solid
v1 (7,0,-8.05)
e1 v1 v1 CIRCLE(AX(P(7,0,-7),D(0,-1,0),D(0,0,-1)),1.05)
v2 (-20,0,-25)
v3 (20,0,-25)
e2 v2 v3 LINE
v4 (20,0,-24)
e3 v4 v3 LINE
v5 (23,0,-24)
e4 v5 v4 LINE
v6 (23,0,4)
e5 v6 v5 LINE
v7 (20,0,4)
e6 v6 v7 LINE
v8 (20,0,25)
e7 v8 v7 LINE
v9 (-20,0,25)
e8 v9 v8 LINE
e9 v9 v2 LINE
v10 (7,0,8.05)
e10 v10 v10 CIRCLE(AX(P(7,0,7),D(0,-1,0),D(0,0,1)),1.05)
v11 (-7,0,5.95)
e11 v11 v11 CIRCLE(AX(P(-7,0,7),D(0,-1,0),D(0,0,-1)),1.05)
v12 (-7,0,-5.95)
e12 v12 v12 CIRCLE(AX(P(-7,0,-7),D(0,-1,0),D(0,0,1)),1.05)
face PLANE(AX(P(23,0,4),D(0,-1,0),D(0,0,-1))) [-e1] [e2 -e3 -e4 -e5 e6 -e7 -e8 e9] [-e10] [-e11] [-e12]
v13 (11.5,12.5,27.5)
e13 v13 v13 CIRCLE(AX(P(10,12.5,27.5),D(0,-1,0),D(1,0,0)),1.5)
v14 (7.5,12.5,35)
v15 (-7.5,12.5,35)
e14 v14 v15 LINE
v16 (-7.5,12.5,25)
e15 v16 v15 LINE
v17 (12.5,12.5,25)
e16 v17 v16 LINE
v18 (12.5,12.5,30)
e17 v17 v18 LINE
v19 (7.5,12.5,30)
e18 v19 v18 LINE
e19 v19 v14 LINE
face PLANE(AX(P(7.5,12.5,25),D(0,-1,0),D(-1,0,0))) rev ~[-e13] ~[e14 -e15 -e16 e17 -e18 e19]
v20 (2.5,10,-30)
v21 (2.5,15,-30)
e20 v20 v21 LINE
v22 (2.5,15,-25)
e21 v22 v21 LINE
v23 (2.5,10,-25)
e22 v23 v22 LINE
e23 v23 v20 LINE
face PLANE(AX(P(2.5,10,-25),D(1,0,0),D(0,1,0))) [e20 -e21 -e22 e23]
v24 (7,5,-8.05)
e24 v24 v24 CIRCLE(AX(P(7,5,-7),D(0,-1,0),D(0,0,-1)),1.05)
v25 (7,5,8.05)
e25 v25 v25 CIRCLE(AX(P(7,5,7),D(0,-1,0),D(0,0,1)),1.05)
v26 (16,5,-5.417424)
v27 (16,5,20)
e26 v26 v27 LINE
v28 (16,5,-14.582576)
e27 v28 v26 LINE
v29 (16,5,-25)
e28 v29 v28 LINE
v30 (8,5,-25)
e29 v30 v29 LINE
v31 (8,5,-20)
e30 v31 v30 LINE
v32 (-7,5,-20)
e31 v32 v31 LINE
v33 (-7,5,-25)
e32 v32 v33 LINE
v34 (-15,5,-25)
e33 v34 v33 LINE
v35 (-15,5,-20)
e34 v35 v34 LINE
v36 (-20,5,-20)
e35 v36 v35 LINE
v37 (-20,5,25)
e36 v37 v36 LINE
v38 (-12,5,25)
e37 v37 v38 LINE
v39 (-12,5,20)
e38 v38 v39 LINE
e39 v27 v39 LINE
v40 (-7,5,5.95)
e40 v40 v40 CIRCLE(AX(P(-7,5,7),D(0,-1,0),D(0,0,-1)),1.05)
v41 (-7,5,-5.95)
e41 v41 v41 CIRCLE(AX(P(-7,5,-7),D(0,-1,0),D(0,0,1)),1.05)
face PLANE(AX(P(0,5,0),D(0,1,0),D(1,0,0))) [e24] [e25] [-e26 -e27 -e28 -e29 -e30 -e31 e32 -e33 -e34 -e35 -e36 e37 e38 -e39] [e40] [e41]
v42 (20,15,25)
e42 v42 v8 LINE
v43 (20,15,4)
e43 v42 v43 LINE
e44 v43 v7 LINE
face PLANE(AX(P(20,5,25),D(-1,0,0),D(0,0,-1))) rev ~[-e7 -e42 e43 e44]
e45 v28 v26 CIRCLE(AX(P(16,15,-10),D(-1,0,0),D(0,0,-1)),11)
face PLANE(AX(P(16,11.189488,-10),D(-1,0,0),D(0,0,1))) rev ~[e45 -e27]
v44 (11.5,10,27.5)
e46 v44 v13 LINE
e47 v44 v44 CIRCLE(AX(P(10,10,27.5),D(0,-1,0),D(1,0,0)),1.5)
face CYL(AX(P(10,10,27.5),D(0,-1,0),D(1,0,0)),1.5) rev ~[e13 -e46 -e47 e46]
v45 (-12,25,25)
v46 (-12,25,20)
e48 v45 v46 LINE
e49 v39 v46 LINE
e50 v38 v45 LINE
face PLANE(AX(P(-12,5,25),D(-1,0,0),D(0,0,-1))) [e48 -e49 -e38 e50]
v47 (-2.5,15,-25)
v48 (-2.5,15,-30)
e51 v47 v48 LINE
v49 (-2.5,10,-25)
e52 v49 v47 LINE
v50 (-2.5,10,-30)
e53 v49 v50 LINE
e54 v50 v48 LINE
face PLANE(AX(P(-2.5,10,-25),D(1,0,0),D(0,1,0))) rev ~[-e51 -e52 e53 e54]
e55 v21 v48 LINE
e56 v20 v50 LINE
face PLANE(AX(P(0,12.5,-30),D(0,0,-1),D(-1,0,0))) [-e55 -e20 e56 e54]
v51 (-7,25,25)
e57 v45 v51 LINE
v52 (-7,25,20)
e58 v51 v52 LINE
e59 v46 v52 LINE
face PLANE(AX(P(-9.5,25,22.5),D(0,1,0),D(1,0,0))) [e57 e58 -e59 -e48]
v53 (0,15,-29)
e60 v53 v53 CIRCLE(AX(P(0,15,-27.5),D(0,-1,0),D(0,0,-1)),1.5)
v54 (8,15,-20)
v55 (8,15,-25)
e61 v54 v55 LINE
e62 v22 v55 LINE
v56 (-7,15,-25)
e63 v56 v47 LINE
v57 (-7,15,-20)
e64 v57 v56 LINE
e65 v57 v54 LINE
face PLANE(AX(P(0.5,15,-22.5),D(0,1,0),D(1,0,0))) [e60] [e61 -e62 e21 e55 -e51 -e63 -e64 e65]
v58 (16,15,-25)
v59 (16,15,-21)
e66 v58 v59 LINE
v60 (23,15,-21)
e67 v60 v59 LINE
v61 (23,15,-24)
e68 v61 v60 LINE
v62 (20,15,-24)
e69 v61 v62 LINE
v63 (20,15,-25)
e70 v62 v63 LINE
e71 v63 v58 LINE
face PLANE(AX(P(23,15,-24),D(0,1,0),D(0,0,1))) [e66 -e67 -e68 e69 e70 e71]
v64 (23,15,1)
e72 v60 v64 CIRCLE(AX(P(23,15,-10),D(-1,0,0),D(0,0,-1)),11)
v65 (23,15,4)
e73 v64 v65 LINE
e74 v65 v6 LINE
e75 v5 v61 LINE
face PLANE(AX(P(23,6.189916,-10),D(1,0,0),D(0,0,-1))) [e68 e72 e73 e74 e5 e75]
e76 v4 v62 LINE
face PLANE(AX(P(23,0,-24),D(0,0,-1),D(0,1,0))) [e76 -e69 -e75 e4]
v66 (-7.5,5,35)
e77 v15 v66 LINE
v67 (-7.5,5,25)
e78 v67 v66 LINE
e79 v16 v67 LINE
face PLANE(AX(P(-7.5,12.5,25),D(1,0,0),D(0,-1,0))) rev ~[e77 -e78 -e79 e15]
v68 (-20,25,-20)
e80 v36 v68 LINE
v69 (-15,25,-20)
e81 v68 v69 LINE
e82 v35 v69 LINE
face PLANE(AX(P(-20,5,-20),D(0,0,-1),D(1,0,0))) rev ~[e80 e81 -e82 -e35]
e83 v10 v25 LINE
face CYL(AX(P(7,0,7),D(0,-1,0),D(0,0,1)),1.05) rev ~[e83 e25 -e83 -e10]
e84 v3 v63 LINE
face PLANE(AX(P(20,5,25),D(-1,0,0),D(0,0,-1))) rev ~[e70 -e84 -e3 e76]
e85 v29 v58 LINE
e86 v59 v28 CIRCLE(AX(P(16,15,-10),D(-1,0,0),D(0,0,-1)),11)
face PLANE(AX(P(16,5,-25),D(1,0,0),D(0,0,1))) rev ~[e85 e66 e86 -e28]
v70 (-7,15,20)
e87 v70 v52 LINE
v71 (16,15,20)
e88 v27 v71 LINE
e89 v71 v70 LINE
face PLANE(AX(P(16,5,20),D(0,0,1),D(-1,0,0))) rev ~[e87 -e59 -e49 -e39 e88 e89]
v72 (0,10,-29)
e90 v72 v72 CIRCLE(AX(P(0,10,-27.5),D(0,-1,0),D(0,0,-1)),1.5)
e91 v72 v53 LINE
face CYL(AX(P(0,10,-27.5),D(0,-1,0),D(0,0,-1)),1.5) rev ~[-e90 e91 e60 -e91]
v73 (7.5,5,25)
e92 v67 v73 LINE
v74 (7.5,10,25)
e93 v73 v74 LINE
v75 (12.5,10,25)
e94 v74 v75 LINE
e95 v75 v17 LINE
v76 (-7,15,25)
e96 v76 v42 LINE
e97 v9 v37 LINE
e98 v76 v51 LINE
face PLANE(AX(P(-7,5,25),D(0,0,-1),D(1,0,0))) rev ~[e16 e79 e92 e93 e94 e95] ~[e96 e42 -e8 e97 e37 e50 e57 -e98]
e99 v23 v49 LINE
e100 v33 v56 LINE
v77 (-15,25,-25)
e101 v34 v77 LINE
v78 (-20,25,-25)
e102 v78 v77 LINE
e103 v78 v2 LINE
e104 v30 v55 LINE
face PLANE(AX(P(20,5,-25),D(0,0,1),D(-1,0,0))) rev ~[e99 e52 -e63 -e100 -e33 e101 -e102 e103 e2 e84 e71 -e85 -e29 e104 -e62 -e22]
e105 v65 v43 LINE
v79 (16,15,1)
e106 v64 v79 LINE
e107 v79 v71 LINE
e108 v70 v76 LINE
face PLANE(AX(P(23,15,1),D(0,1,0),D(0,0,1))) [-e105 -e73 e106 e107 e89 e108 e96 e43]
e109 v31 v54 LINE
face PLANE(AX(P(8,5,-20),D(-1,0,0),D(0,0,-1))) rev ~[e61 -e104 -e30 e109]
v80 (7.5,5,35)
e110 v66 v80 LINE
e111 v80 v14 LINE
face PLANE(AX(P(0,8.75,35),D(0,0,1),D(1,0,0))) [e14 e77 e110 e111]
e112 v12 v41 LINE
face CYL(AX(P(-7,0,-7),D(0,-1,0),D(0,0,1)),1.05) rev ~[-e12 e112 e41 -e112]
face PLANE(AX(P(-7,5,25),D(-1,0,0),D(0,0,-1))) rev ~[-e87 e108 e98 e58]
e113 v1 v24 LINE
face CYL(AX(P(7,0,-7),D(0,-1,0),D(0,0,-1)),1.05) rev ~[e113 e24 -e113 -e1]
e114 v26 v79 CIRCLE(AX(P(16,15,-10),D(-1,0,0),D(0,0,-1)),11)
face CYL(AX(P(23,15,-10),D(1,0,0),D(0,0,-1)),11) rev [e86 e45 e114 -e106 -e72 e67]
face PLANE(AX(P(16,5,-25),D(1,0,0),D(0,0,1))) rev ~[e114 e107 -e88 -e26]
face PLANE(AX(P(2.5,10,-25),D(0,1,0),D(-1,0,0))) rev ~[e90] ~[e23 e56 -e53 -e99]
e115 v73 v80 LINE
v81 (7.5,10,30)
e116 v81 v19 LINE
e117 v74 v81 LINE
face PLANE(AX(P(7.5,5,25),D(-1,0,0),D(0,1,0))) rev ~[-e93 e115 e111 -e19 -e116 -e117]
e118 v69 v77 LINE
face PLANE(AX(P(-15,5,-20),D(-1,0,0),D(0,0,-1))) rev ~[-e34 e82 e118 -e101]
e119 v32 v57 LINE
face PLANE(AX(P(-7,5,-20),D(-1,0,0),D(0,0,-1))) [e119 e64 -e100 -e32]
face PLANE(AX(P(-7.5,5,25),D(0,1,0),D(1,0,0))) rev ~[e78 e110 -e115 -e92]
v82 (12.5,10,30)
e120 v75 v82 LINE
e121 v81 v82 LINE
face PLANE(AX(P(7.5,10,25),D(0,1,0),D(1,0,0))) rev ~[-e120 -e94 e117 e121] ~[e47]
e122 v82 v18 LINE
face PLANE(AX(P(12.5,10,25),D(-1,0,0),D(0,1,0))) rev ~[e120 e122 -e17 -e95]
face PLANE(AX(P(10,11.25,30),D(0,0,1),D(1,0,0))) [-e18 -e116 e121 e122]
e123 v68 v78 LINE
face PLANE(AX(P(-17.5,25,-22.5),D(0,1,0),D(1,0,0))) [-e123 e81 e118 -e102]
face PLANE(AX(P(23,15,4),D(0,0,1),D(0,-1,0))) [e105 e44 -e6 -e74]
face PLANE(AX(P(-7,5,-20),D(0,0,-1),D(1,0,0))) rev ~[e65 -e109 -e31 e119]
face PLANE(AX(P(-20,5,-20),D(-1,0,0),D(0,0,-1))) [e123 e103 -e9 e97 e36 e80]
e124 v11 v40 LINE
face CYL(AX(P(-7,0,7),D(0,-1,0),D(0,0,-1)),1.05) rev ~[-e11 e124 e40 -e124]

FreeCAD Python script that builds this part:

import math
import FreeCAD as App
import Part
import Sketcher

V = App.Vector


def add_polygon(sketch, points):
    """Adds a closed chain of lines whose ends are joined by coincident constraints."""
    first, n = sketch.GeometryCount, len(points)
    for a, b in zip(points, points[1:] + points[:1]):
        sketch.addGeometry(Part.LineSegment(App.Vector(*a, 0), App.Vector(*b, 0)), False)
    for i in range(n):
        sketch.addConstraint(Sketcher.Constraint("Coincident", first + i, 2, first + (i + 1) % n, 1))

doc = App.newDocument("Part")
body = doc.addObject("PartDesign::Body", "Body")

sketch1 = doc.addObject("Sketcher::SketchObject", "Sketch")
body.addObject(sketch1)
sketch1.AttachmentSupport = (doc.XZ_Plane, [""])
sketch1.MapMode = "FlatFace"
add_polygon(sketch1, [(-20, -25), (-20, 25), (20, 25), (20, -25)])
sketch1.addConstraint(Sketcher.Constraint("Vertical", 0))
sketch1.addConstraint(Sketcher.Constraint("Horizontal", 1))
sketch1.addConstraint(Sketcher.Constraint("Vertical", 2))
sketch1.addConstraint(Sketcher.Constraint("Horizontal", 3))
sketch1.addConstraint(Sketcher.Constraint("Symmetric", 0, 2, 2, 2, -1, 1))
sketch1.addConstraint(Sketcher.Constraint("DistanceX", 1, 1, 1, 2, 40.0))
sketch1.addConstraint(Sketcher.Constraint("DistanceY", 0, 1, 0, 2, 50.0))
pad1 = doc.addObject("PartDesign::Pad", "Pad")
body.addObject(pad1)
pad1.Profile = sketch1
pad1.Length = 5
pad1.Reversed = True

sketch2 = doc.addObject("Sketcher::SketchObject", "Sketch001")
body.addObject(sketch2)
sketch2.AttachmentSupport = (doc.XZ_Plane, [""])
sketch2.MapMode = "FlatFace"
sketch2.AttachmentOffset = App.Placement(V(0, 0, -5), App.Rotation())
add_polygon(sketch2, [(-12, 20), (-12, 25), (-7, 25), (-7, 20)])
add_polygon(sketch2, [(-20, -25), (-20, -20), (-15, -20), (-15, -25)])
sketch2.addConstraint(Sketcher.Constraint("Vertical", 0))
sketch2.addConstraint(Sketcher.Constraint("Horizontal", 1))
sketch2.addConstraint(Sketcher.Constraint("Vertical", 2))
sketch2.addConstraint(Sketcher.Constraint("Horizontal", 3))
sketch2.addConstraint(Sketcher.Constraint("Vertical", 4))
sketch2.addConstraint(Sketcher.Constraint("Horizontal", 5))
sketch2.addConstraint(Sketcher.Constraint("Vertical", 6))
sketch2.addConstraint(Sketcher.Constraint("Horizontal", 7))
sketch2.addConstraint(Sketcher.Constraint("Equal", 3, 5))
sketch2.addConstraint(Sketcher.Constraint("Equal", 7, 0))
sketch2.addConstraint(Sketcher.Constraint("Equal", 2, 4))
sketch2.addConstraint(Sketcher.Constraint("DistanceX", 1, 1, 1, 2, 5.0))
sketch2.addConstraint(Sketcher.Constraint("DistanceX", 0, 2, -1, 1, 12.0))
sketch2.addConstraint(Sketcher.Constraint("DistanceY", -1, 1, 0, 2, 25.0))
sketch2.addConstraint(Sketcher.Constraint("DistanceX", 4, 2, -1, 1, 20.0))
sketch2.addConstraint(Sketcher.Constraint("DistanceY", 4, 2, -1, 1, 20.0))
pad2 = doc.addObject("PartDesign::Pad", "Pad001")
body.addObject(pad2)
pad2.Profile = sketch2
pad2.Length = 20
pad2.Reversed = True

sketch3 = doc.addObject("Sketcher::SketchObject", "Sketch002")
body.addObject(sketch3)
sketch3.AttachmentSupport = (doc.XZ_Plane, [""])
sketch3.MapMode = "FlatFace"
sketch3.AttachmentOffset = App.Placement(V(0, 0, -5), App.Rotation())
add_polygon(sketch3, [(20, 25), (20, -25), (16, -25), (16, 20), (-7, 20), (-7, 25)])
add_polygon(sketch3, [(-7, -25), (-7, -20), (8, -20), (8, -25)])
sketch3.addConstraint(Sketcher.Constraint("Vertical", 0))
sketch3.addConstraint(Sketcher.Constraint("Horizontal", 1))
sketch3.addConstraint(Sketcher.Constraint("Vertical", 2))
sketch3.addConstraint(Sketcher.Constraint("Horizontal", 3))
sketch3.addConstraint(Sketcher.Constraint("Vertical", 4))
sketch3.addConstraint(Sketcher.Constraint("Horizontal", 5))
sketch3.addConstraint(Sketcher.Constraint("Vertical", 6))
sketch3.addConstraint(Sketcher.Constraint("Horizontal", 7))
sketch3.addConstraint(Sketcher.Constraint("Vertical", 8))
sketch3.addConstraint(Sketcher.Constraint("Horizontal", 9))
sketch3.addConstraint(Sketcher.Constraint("Symmetric", 3, 2, 6, 2, -1))
sketch3.addConstraint(Sketcher.Constraint("Horizontal", 1, 2, 8, 2))
sketch3.addConstraint(Sketcher.Constraint("Equal", 4, 6))
sketch3.addConstraint(Sketcher.Constraint("DistanceX", 1, 2, 1, 1, 4.0))
sketch3.addConstraint(Sketcher.Constraint("DistanceX", 3, 2, 3, 1, 23.0))
sketch3.addConstraint(Sketcher.Constraint("DistanceX", 7, 1, 7, 2, 15.0))
sketch3.addConstraint(Sketcher.Constraint("DistanceY", 0, 2, 0, 1, 50.0))
sketch3.addConstraint(Sketcher.Constraint("DistanceY", 2, 1, 2, 2, 45.0))
sketch3.addConstraint(Sketcher.Constraint("DistanceX", -1, 1, 0, 2, 20.0))
pad3 = doc.addObject("PartDesign::Pad", "Pad002")
body.addObject(pad3)
pad3.Profile = sketch3
pad3.Length = 10
pad3.Reversed = True

sketch4 = doc.addObject("Sketcher::SketchObject", "Sketch003")
body.addObject(sketch4)
sketch4.AttachmentSupport = (doc.YZ_Plane, [""])
sketch4.MapMode = "FlatFace"
sketch4.AttachmentOffset = App.Placement(V(0, 0, 20), App.Rotation())
sketch4.addGeometry(Part.LineSegment(V(15, -21, 0), V(15, 1, 0)), False)
sketch4.addGeometry(Part.ArcOfCircle(Part.Circle(V(15, -10, 0), V(0, 0, 1), 11), math.radians(90), math.radians(270)), False)
sketch4.addConstraint(Sketcher.Constraint("Coincident", 0, 1, 1, 2))
sketch4.addConstraint(Sketcher.Constraint("Coincident", 1, 1, 0, 2))
sketch4.addConstraint(Sketcher.Constraint("Vertical", 0))
sketch4.addConstraint(Sketcher.Constraint("Vertical", 1, 3, 0, 1))
sketch4.addConstraint(Sketcher.Constraint("Radius", 1, 11.0))
sketch4.addConstraint(Sketcher.Constraint("DistanceX", -1, 1, 1, 3, 15.0))
sketch4.addConstraint(Sketcher.Constraint("DistanceY", 1, 3, -1, 1, 10.0))
pocket1 = doc.addObject("PartDesign::Pocket", "Pocket")
body.addObject(pocket1)
pocket1.Profile = sketch4
pocket1.Length = 4

sketch5 = doc.addObject("Sketcher::SketchObject", "Sketch004")
body.addObject(sketch5)
sketch5.AttachmentSupport = (doc.YZ_Plane, [""])
sketch5.MapMode = "FlatFace"
sketch5.AttachmentOffset = App.Placement(V(0, 0, 23), App.Rotation())
sketch5.addGeometry(Part.LineSegment(V(15, 1, 0), V(15, 4, 0)), False)
sketch5.addGeometry(Part.LineSegment(V(15, 4, 0), V(0, 4, 0)), False)
sketch5.addGeometry(Part.LineSegment(V(0, 4, 0), V(0, -24, 0)), False)
sketch5.addGeometry(Part.LineSegment(V(0, -24, 0), V(15, -24, 0)), False)
sketch5.addGeometry(Part.LineSegment(V(15, -24, 0), V(15, -21, 0)), False)
sketch5.addGeometry(Part.ArcOfCircle(Part.Circle(V(15, -10, 0), V(0, 0, 1), 11), math.radians(90), math.radians(270)), False)
sketch5.addConstraint(Sketcher.Constraint("Coincident", 0, 2, 1, 1))
sketch5.addConstraint(Sketcher.Constraint("Coincident", 1, 2, 2, 1))
sketch5.addConstraint(Sketcher.Constraint("Coincident", 2, 2, 3, 1))
sketch5.addConstraint(Sketcher.Constraint("Coincident", 3, 2, 4, 1))
sketch5.addConstraint(Sketcher.Constraint("Coincident", 4, 2, 5, 2))
sketch5.addConstraint(Sketcher.Constraint("Coincident", 5, 1, 0, 1))
sketch5.addConstraint(Sketcher.Constraint("Vertical", 0))
sketch5.addConstraint(Sketcher.Constraint("Horizontal", 1))
sketch5.addConstraint(Sketcher.Constraint("Vertical", 2))
sketch5.addConstraint(Sketcher.Constraint("Horizontal", 3))
sketch5.addConstraint(Sketcher.Constraint("Vertical", 4))
sketch5.addConstraint(Sketcher.Constraint("PointOnObject", 1, 2, -2))
sketch5.addConstraint(Sketcher.Constraint("Vertical", 5, 3, 0, 2))
sketch5.addConstraint(Sketcher.Constraint("Vertical", 0, 2, 3, 2))
sketch5.addConstraint(Sketcher.Constraint("Equal", 0, 4))
sketch5.addConstraint(Sketcher.Constraint("Radius", 5, 11.0))
sketch5.addConstraint(Sketcher.Constraint("DistanceX", 1, 2, 1, 1, 15.0))
sketch5.addConstraint(Sketcher.Constraint("DistanceY", 0, 1, 0, 2, 3.0))
sketch5.addConstraint(Sketcher.Constraint("DistanceY", 5, 3, -1, 1, 10.0))
pad4 = doc.addObject("PartDesign::Pad", "Pad003")
body.addObject(pad4)
pad4.Profile = sketch5
pad4.Length = 3
pad4.Reversed = True

sketch6 = doc.addObject("Sketcher::SketchObject", "Sketch005")
body.addObject(sketch6)
sketch6.AttachmentSupport = (doc.XY_Plane, [""])
sketch6.MapMode = "FlatFace"
sketch6.AttachmentOffset = App.Placement(V(0, 0, -25), App.Rotation())
add_polygon(sketch6, [(2.5, 15), (2.5, 10), (-2.5, 10), (-2.5, 15)])
sketch6.addConstraint(Sketcher.Constraint("Vertical", 0))
sketch6.addConstraint(Sketcher.Constraint("Horizontal", 1))
sketch6.addConstraint(Sketcher.Constraint("Vertical", 2))
sketch6.addConstraint(Sketcher.Constraint("Horizontal", 3))
sketch6.addConstraint(Sketcher.Constraint("Equal", 3, 0))
sketch6.addConstraint(Sketcher.Constraint("DistanceX", 1, 2, 1, 1, 5.0))
sketch6.addConstraint(Sketcher.Constraint("DistanceY", -1, 1, 0, 2, 10.0))
sketch6.addConstraint(Sketcher.Constraint("DistanceX", -1, 1, 0, 2, 2.5))
pad5 = doc.addObject("PartDesign::Pad", "Pad004")
body.addObject(pad5)
pad5.Profile = sketch6
pad5.Length = 5
pad5.Reversed = True

sketch7 = doc.addObject("Sketcher::SketchObject", "Sketch006")
body.addObject(sketch7)
sketch7.AttachmentSupport = (doc.XZ_Plane, [""])
sketch7.MapMode = "FlatFace"
sketch7.AttachmentOffset = App.Placement(V(0, 0, -10), App.Rotation())
sketch7.addGeometry(Part.Circle(V(0, -27.5, 0), V(0, 0, 1), 1.5), False)
sketch7.addConstraint(Sketcher.Constraint("PointOnObject", 0, 3, -2))
sketch7.addConstraint(Sketcher.Constraint("Diameter", 0, 3.0))
sketch7.addConstraint(Sketcher.Constraint("DistanceY", 0, 3, -1, 1, 27.5))
pocket2 = doc.addObject("PartDesign::Pocket", "Pocket001")
body.addObject(pocket2)
pocket2.Profile = sketch7
pocket2.Length = 5

sketch8 = doc.addObject("Sketcher::SketchObject", "Sketch007")
body.addObject(sketch8)
sketch8.AttachmentSupport = (doc.XY_Plane, [""])
sketch8.MapMode = "FlatFace"
sketch8.AttachmentOffset = App.Placement(V(0, 0, 25), App.Rotation())
add_polygon(sketch8, [(7.5, 12.5), (7.5, 10), (12.5, 10), (12.5, 12.5)])
sketch8.addConstraint(Sketcher.Constraint("Vertical", 0))
sketch8.addConstraint(Sketcher.Constraint("Horizontal", 1))
sketch8.addConstraint(Sketcher.Constraint("Vertical", 2))
sketch8.addConstraint(Sketcher.Constraint("Horizontal", 3))
sketch8.addConstraint(Sketcher.Constraint("DistanceX", 1, 1, 1, 2, 5.0))
sketch8.addConstraint(Sketcher.Constraint("DistanceY", 0, 2, 0, 1, 2.5))
sketch8.addConstraint(Sketcher.Constraint("DistanceY", -1, 1, 0, 2, 10.0))
sketch8.addConstraint(Sketcher.Constraint("DistanceX", -1, 1, 0, 2, 7.5))
pad6 = doc.addObject("PartDesign::Pad", "Pad005")
body.addObject(pad6)
pad6.Profile = sketch8
pad6.Length = 5

sketch9 = doc.addObject("Sketcher::SketchObject", "Sketch008")
body.addObject(sketch9)
sketch9.AttachmentSupport = (doc.XY_Plane, [""])
sketch9.MapMode = "FlatFace"
sketch9.AttachmentOffset = App.Placement(V(0, 0, 25), App.Rotation())
add_polygon(sketch9, [(7.5, 12.5), (-7.5, 12.5), (-7.5, 5), (7.5, 5)])
sketch9.addConstraint(Sketcher.Constraint("Horizontal", 0))
sketch9.addConstraint(Sketcher.Constraint("Vertical", 1))
sketch9.addConstraint(Sketcher.Constraint("Horizontal", 2))
sketch9.addConstraint(Sketcher.Constraint("Vertical", 3))
sketch9.addConstraint(Sketcher.Constraint("DistanceX", 0, 2, 0, 1, 15.0))
sketch9.addConstraint(Sketcher.Constraint("DistanceY", 1, 2, 1, 1, 7.5))
sketch9.addConstraint(Sketcher.Constraint("DistanceY", -1, 1, 1, 2, 5.0))
sketch9.addConstraint(Sketcher.Constraint("DistanceX", 0, 2, -1, 1, 7.5))
pad7 = doc.addObject("PartDesign::Pad", "Pad006")
body.addObject(pad7)
pad7.Profile = sketch9
pad7.Length = 10

sketch10 = doc.addObject("Sketcher::SketchObject", "Sketch009")
body.addObject(sketch10)
sketch10.AttachmentSupport = (doc.XZ_Plane, [""])
sketch10.MapMode = "FlatFace"
sketch10.AttachmentOffset = App.Placement(V(0, 0, -10), App.Rotation())
sketch10.addGeometry(Part.Circle(V(10, 27.5, 0), V(0, 0, 1), 1.5), False)
sketch10.addConstraint(Sketcher.Constraint("Diameter", 0, 3.0))
sketch10.addConstraint(Sketcher.Constraint("DistanceX", -1, 1, 0, 3, 10.0))
sketch10.addConstraint(Sketcher.Constraint("DistanceY", -1, 1, 0, 3, 27.5))
pocket3 = doc.addObject("PartDesign::Pocket", "Pocket002")
body.addObject(pocket3)
pocket3.Profile = sketch10
pocket3.Length = 2.5

sketch11 = doc.addObject("Sketcher::SketchObject", "Sketch010")
body.addObject(sketch11)
sketch11.AttachmentSupport = (doc.XZ_Plane, [""])
sketch11.MapMode = "FlatFace"
sketch11.addGeometry(Part.Circle(V(-7, 7, 0), V(0, 0, 1), 1.05), False)
sketch11.addGeometry(Part.Circle(V(7, 7, 0), V(0, 0, 1), 1.05), False)
sketch11.addGeometry(Part.Circle(V(7, -7, 0), V(0, 0, 1), 1.05), False)
sketch11.addGeometry(Part.Circle(V(-7, -7, 0), V(0, 0, 1), 1.05), False)
sketch11.addConstraint(Sketcher.Constraint("Equal", 0, 1))
sketch11.addConstraint(Sketcher.Constraint("Equal", 1, 2))
sketch11.addConstraint(Sketcher.Constraint("Equal", 2, 3))
sketch11.addConstraint(Sketcher.Constraint("Symmetric", 0, 3, 2, 3, -1, 1))
sketch11.addConstraint(Sketcher.Constraint("Symmetric", 1, 3, 3, 3, -1, 1))
sketch11.addConstraint(Sketcher.Constraint("Symmetric", 0, 3, 1, 3, -2))
sketch11.addConstraint(Sketcher.Constraint("Diameter", 0, 2.1))
sketch11.addConstraint(Sketcher.Constraint("DistanceX", 0, 3, -1, 1, 7.0))
sketch11.addConstraint(Sketcher.Constraint("DistanceY", -1, 1, 0, 3, 7.0))
pocket4 = doc.addObject("PartDesign::Pocket", "Pocket003")
body.addObject(pocket4)
pocket4.Profile = sketch11
pocket4.Length = 5

doc.recompute()
